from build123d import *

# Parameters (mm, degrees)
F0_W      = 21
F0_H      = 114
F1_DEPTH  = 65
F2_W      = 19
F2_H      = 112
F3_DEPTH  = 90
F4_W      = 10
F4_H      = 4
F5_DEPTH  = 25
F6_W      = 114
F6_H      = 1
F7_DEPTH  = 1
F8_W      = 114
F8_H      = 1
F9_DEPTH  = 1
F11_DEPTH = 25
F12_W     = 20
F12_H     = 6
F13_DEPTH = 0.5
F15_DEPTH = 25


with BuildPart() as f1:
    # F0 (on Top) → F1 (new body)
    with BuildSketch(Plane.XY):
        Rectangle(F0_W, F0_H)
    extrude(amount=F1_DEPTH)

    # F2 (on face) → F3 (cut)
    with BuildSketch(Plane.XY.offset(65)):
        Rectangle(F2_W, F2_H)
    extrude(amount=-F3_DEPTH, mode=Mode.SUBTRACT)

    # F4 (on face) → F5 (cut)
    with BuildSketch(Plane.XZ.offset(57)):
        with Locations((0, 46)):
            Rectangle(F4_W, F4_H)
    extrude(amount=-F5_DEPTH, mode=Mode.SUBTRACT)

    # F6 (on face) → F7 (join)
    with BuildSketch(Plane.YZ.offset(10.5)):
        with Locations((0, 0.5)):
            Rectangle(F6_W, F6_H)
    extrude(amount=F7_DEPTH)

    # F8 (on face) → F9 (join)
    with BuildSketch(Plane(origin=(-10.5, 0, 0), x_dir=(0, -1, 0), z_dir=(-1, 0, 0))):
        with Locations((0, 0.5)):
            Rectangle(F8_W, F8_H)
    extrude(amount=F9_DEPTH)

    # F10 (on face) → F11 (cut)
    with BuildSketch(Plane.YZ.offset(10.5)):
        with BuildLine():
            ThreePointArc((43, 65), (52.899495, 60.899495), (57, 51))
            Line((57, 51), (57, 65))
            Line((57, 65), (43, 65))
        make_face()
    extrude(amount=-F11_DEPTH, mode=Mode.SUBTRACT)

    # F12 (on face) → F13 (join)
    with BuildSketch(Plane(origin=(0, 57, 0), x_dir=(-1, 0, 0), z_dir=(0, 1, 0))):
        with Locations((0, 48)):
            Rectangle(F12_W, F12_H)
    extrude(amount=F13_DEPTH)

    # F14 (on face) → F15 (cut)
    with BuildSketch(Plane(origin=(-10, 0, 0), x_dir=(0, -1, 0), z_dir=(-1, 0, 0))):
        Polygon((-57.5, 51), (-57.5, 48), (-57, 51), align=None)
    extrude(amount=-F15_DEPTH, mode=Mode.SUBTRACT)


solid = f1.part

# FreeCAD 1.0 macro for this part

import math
import FreeCAD as App
import Part
import Sketcher

doc = App.newDocument("Part")
body = doc.addObject("PartDesign::Body", "Body")

# Sketch on XY plane
sketch1 = body.newObject("Sketcher::SketchObject", "Sketch")
sketch1.AttachmentSupport = (doc.getObject("XY_Plane"), [""])
sketch1.MapMode = "FlatFace"
sketch1.addGeometry(Part.LineSegment(App.Vector(-10.5, 57, 0), App.Vector(-10.5, -57, 0)), False)
sketch1.addGeometry(Part.LineSegment(App.Vector(-10.5, -57, 0), App.Vector(10.5, -57, 0)), False)
sketch1.addGeometry(Part.LineSegment(App.Vector(10.5, -57, 0), App.Vector(10.5, 57, 0)), False)
sketch1.addGeometry(Part.LineSegment(App.Vector(10.5, 57, 0), App.Vector(-10.5, 57, 0)), False)
sketch1.addConstraint(Sketcher.Constraint("Coincident", 0, 2, 1, 1))
sketch1.addConstraint(Sketcher.Constraint("Coincident", 1, 2, 2, 1))
sketch1.addConstraint(Sketcher.Constraint("Coincident", 2, 2, 3, 1))
sketch1.addConstraint(Sketcher.Constraint("Coincident", 3, 2, 0, 1))
sketch1.addConstraint(Sketcher.Constraint("Vertical", 0))
sketch1.addConstraint(Sketcher.Constraint("Horizontal", 1))
sketch1.addConstraint(Sketcher.Constraint("Vertical", 2))
sketch1.addConstraint(Sketcher.Constraint("Horizontal", 3))
sketch1.addConstraint(Sketcher.Constraint("Symmetric", 0, 2, 2, 2, -1, 1))
sketch1.addConstraint(Sketcher.Constraint("DistanceX", 1, 1, 1, 2, 21.0))
sketch1.addConstraint(Sketcher.Constraint("DistanceY", 0, 2, 0, 1, 114.0))
pad1 = body.newObject("PartDesign::Pad", "Pad")
pad1.Profile = sketch1
pad1.Length = 65

# Sketch on XY plane
sketch2 = body.newObject("Sketcher::SketchObject", "Sketch001")
sketch2.AttachmentSupport = (doc.getObject("XY_Plane"), [""])
sketch2.MapMode = "FlatFace"
sketch2.AttachmentOffset = App.Placement(App.Vector(0, 0, 65), App.Rotation())
sketch2.addGeometry(Part.LineSegment(App.Vector(-9.5, 56, 0), App.Vector(-9.5, -56, 0)), False)
sketch2.addGeometry(Part.LineSegment(App.Vector(-9.5, -56, 0), App.Vector(9.5, -56, 0)), False)
sketch2.addGeometry(Part.LineSegment(App.Vector(9.5, -56, 0), App.Vector(9.5, 56, 0)), False)
sketch2.addGeometry(Part.LineSegment(App.Vector(9.5, 56, 0), App.Vector(-9.5, 56, 0)), False)
sketch2.addConstraint(Sketcher.Constraint("Coincident", 0, 2, 1, 1))
sketch2.addConstraint(Sketcher.Constraint("Coincident", 1, 2, 2, 1))
sketch2.addConstraint(Sketcher.Constraint("Coincident", 2, 2, 3, 1))
sketch2.addConstraint(Sketcher.Constraint("Coincident", 3, 2, 0, 1))
sketch2.addConstraint(Sketcher.Constraint("Vertical", 0))
sketch2.addConstraint(Sketcher.Constraint("Horizontal", 1))
sketch2.addConstraint(Sketcher.Constraint("Vertical", 2))
sketch2.addConstraint(Sketcher.Constraint("Horizontal", 3))
sketch2.addConstraint(Sketcher.Constraint("Symmetric", 0, 2, 2, 2, -1, 1))
sketch2.addConstraint(Sketcher.Constraint("DistanceX", 1, 1, 1, 2, 19.0))
sketch2.addConstraint(Sketcher.Constraint("DistanceY", 0, 2, 0, 1, 112.0))
pocket1 = body.newObject("PartDesign::Pocket", "Pocket")
pocket1.Profile = sketch2
pocket1.Length = 90

# Sketch on XZ plane
sketch3 = body.newObject("Sketcher::SketchObject", "Sketch002")
sketch3.AttachmentSupport = (doc.getObject("XZ_Plane"), [""])
sketch3.MapMode = "FlatFace"
sketch3.AttachmentOffset = App.Placement(App.Vector(0, 0, 57), App.Rotation())
sketch3.addGeometry(Part.LineSegment(App.Vector(-5, 48, 0), App.Vector(-5, 44, 0)), False)
sketch3.addGeometry(Part.LineSegment(App.Vector(-5, 44, 0), App.Vector(5, 44, 0)), False)
sketch3.addGeometry(Part.LineSegment(App.Vector(5, 44, 0), App.Vector(5, 48, 0)), False)
sketch3.addGeometry(Part.LineSegment(App.Vector(5, 48, 0), App.Vector(-5, 48, 0)), False)
sketch3.addConstraint(Sketcher.Constraint("Coincident", 0, 2, 1, 1))
sketch3.addConstraint(Sketcher.Constraint("Coincident", 1, 2, 2, 1))
sketch3.addConstraint(Sketcher.Constraint("Coincident", 2, 2, 3, 1))
sketch3.addConstraint(Sketcher.Constraint("Coincident", 3, 2, 0, 1))
sketch3.addConstraint(Sketcher.Constraint("Vertical", 0))
sketch3.addConstraint(Sketcher.Constraint("Horizontal", 1))
sketch3.addConstraint(Sketcher.Constraint("Vertical", 2))
sketch3.addConstraint(Sketcher.Constraint("Horizontal", 3))
sketch3.addConstraint(Sketcher.Constraint("DistanceX", 1, 1, 1, 2, 10.0))
sketch3.addConstraint(Sketcher.Constraint("DistanceY", 0, 2, 0, 1, 4.0))
sketch3.addConstraint(Sketcher.Constraint("DistanceX", 0, 2, -1, 1, 5.0))
sketch3.addConstraint(Sketcher.Constraint("DistanceY", -1, 1, 0, 2, 44.0))
pocket2 = body.newObject("PartDesign::Pocket", "Pocket001")
pocket2.Profile = sketch3
pocket2.Length = 25

# Sketch on YZ plane
sketch4 = body.newObject("Sketcher::SketchObject", "Sketch003")
sketch4.AttachmentSupport = (doc.getObject("YZ_Plane"), [""])
sketch4.MapMode = "FlatFace"
sketch4.AttachmentOffset = App.Placement(App.Vector(0, 0, 10.5), App.Rotation())
sketch4.addGeometry(Part.LineSegment(App.Vector(-57, 1, 0), App.Vector(-57, 0, 0)), False)
sketch4.addGeometry(Part.LineSegment(App.Vector(-57, 0, 0), App.Vector(57, 0, 0)), False)
sketch4.addGeometry(Part.LineSegment(App.Vector(57, 0, 0), App.Vector(57, 1, 0)), False)
sketch4.addGeometry(Part.LineSegment(App.Vector(57, 1, 0), App.Vector(-57, 1, 0)), False)
sketch4.addConstraint(Sketcher.Constraint("Coincident", 0, 2, 1, 1))
sketch4.addConstraint(Sketcher.Constraint("Coincident", 1, 2, 2, 1))
sketch4.addConstraint(Sketcher.Constraint("Coincident", 2, 2, 3, 1))
sketch4.addConstraint(Sketcher.Constraint("Coincident", 3, 2, 0, 1))
sketch4.addConstraint(Sketcher.Constraint("Vertical", 0))
sketch4.addConstraint(Sketcher.Constraint("Horizontal", 1))
sketch4.addConstraint(Sketcher.Constraint("Vertical", 2))
sketch4.addConstraint(Sketcher.Constraint("Horizontal", 3))
sketch4.addConstraint(Sketcher.Constraint("Symmetric", 0, 2, 1, 2, -1, 1))
sketch4.addConstraint(Sketcher.Constraint("DistanceX", 1, 1, 1, 2, 114.0))
sketch4.addConstraint(Sketcher.Constraint("DistanceY", 0, 2, 0, 1, 1.0))
pad2 = body.newObject("PartDesign::Pad", "Pad001")
pad2.Profile = sketch4
pad2.Length = 1

# Sketch on YZ plane
sketch5 = body.newObject("Sketcher::SketchObject", "Sketch004")
sketch5.AttachmentSupport = (doc.getObject("YZ_Plane"), [""])
sketch5.MapMode = "FlatFace"
sketch5.AttachmentOffset = App.Placement(App.Vector(0, 0, -10.5), App.Rotation())
sketch5.addGeometry(Part.LineSegment(App.Vector(57, 1, 0), App.Vector(57, 0, 0)), False)
sketch5.addGeometry(Part.LineSegment(App.Vector(57, 0, 0), App.Vector(-57, 0, 0)), False)
sketch5.addGeometry(Part.LineSegment(App.Vector(-57, 0, 0), App.Vector(-57, 1, 0)), False)
sketch5.addGeometry(Part.LineSegment(App.Vector(-57, 1, 0), App.Vector(57, 1, 0)), False)
sketch5.addConstraint(Sketcher.Constraint("Coincident", 0, 2, 1, 1))
sketch5.addConstraint(Sketcher.Constraint("Coincident", 1, 2, 2, 1))
sketch5.addConstraint(Sketcher.Constraint("Coincident", 2, 2, 3, 1))
sketch5.addConstraint(Sketcher.Constraint("Coincident", 3, 2, 0, 1))
sketch5.addConstraint(Sketcher.Constraint("Vertical", 0))
sketch5.addConstraint(Sketcher.Constraint("Horizontal", 1))
sketch5.addConstraint(Sketcher.Constraint("Vertical", 2))
sketch5.addConstraint(Sketcher.Constraint("Horizontal", 3))
sketch5.addConstraint(Sketcher.Constraint("Symmetric", 0, 2, 1, 2, -1, 1))
sketch5.addConstraint(Sketcher.Constraint("DistanceX", 1, 2, 1, 1, 114.0))
sketch5.addConstraint(Sketcher.Constraint("DistanceY", 0, 2, 0, 1, 1.0))
pad3 = body.newObject("PartDesign::Pad", "Pad002")
pad3.Profile = sketch5
pad3.Length = 1
pad3.Reversed = True

# Sketch on YZ plane
sketch6 = body.newObject("Sketcher::SketchObject", "Sketch005")
sketch6.AttachmentSupport = (doc.getObject("YZ_Plane"), [""])
sketch6.MapMode = "FlatFace"
sketch6.AttachmentOffset = App.Placement(App.Vector(0, 0, 10.5), App.Rotation())
sketch6.addGeometry(Part.ArcOfCircle(Part.Circle(App.Vector(43, 51, 0), App.Vector(0, 0, 1), 14), math.radians(-0.000001), math.radians(90.000001)), False)
sketch6.addGeometry(Part.LineSegment(App.Vector(57, 51, 0), App.Vector(57, 65, 0)), False)
sketch6.addGeometry(Part.LineSegment(App.Vector(57, 65, 0), App.Vector(43, 65, 0)), False)
sketch6.addConstraint(Sketcher.Constraint("Tangent", 0, 1, 1, 1))
sketch6.addConstraint(Sketcher.Constraint("Coincident", 1, 2, 2, 1))
sketch6.addConstraint(Sketcher.Constraint("Tangent", 2, 2, 0, 2))
sketch6.addConstraint(Sketcher.Constraint("Vertical", 1))
sketch6.addConstraint(Sketcher.Constraint("Horizontal", 2))
sketch6.addConstraint(Sketcher.Constraint("Radius", 0, 14.0))
sketch6.addConstraint(Sketcher.Constraint("DistanceX", -1, 1, 0, 3, 43.0))
sketch6.addConstraint(Sketcher.Constraint("DistanceY", -1, 1, 0, 3, 51.0))
pocket3 = body.newObject("PartDesign::Pocket", "Pocket002")
pocket3.Profile = sketch6
pocket3.Length = 25

# Sketch on XZ plane
sketch7 = body.newObject("Sketcher::SketchObject", "Sketch006")
sketch7.AttachmentSupport = (doc.getObject("XZ_Plane"), [""])
sketch7.MapMode = "FlatFace"
sketch7.AttachmentOffset = App.Placement(App.Vector(0, 0, -57), App.Rotation())
sketch7.addGeometry(Part.LineSegment(App.Vector(10, 51, 0), App.Vector(10, 45, 0)), False)
sketch7.addGeometry(Part.LineSegment(App.Vector(10, 45, 0), App.Vector(-10, 45, 0)), False)
sketch7.addGeometry(Part.LineSegment(App.Vector(-10, 45, 0), App.Vector(-10, 51, 0)), False)
sketch7.addGeometry(Part.LineSegment(App.Vector(-10, 51, 0), App.Vector(10, 51, 0)), False)
sketch7.addConstraint(Sketcher.Constraint("Coincident", 0, 2, 1, 1))
sketch7.addConstraint(Sketcher.Constraint("Coincident", 1, 2, 2, 1))
sketch7.addConstraint(Sketcher.Constraint("Coincident", 2, 2, 3, 1))
sketch7.addConstraint(Sketcher.Constraint("Coincident", 3, 2, 0, 1))
sketch7.addConstraint(Sketcher.Constraint("Vertical", 0))
sketch7.addConstraint(Sketcher.Constraint("Horizontal", 1))
sketch7.addConstraint(Sketcher.Constraint("Vertical", 2))
sketch7.addConstraint(Sketcher.Constraint("Horizontal", 3))
sketch7.addConstraint(Sketcher.Constraint("DistanceX", 1, 2, 1, 1, 20.0))
sketch7.addConstraint(Sketcher.Constraint("DistanceY", 0, 2, 0, 1, 6.0))
sketch7.addConstraint(Sketcher.Constraint("DistanceX", -1, 1, 0, 2, 10.0))
sketch7.addConstraint(Sketcher.Constraint("DistanceY", -1, 1, 0, 2, 45.0))
pad4 = body.newObject("PartDesign::Pad", "Pad003")
pad4.Profile = sketch7
pad4.Length = 0.5
pad4.Reversed = True

# Sketch on YZ plane
sketch8 = body.newObject("Sketcher::SketchObject", "Sketch007")
sketch8.AttachmentSupport = (doc.getObject("YZ_Plane"), [""])
sketch8.MapMode = "FlatFace"
sketch8.AttachmentOffset = App.Placement(App.Vector(0, 0, -10), App.Rotation())
sketch8.addGeometry(Part.LineSegment(App.Vector(57.5, 51, 0), App.Vector(57.5, 48, 0)), False)
sketch8.addGeometry(Part.LineSegment(App.Vector(57.5, 48, 0), App.Vector(57, 51, 0)), False)
sketch8.addGeometry(Part.LineSegment(App.Vector(57, 51, 0), App.Vector(57.5, 51, 0)), False)
sketch8.addConstraint(Sketcher.Constraint("Coincident", 0, 2, 1, 1))
sketch8.addConstraint(Sketcher.Constraint("Coincident", 1, 2, 2, 1))
sketch8.addConstraint(Sketcher.Constraint("Coincident", 2, 2, 0, 1))
sketch8.addConstraint(Sketcher.Constraint("Vertical", 0))
sketch8.addConstraint(Sketcher.Constraint("Horizontal", 2))
sketch8.addConstraint(Sketcher.Constraint("DistanceY", 0, 2, 0, 1, 3.0))
sketch8.addConstraint(Sketcher.Constraint("DistanceX", 2, 1, 2, 2, 0.5))
sketch8.addConstraint(Sketcher.Constraint("DistanceY", -1, 1, 0, 2, 48.0))
sketch8.addConstraint(Sketcher.Constraint("DistanceX", -1, 1, 1, 2, 57.0))
pocket4 = body.newObject("PartDesign::Pocket", "Pocket003")
pocket4.Profile = sketch8
pocket4.Length = 25
pocket4.Reversed = True

doc.recompute()
